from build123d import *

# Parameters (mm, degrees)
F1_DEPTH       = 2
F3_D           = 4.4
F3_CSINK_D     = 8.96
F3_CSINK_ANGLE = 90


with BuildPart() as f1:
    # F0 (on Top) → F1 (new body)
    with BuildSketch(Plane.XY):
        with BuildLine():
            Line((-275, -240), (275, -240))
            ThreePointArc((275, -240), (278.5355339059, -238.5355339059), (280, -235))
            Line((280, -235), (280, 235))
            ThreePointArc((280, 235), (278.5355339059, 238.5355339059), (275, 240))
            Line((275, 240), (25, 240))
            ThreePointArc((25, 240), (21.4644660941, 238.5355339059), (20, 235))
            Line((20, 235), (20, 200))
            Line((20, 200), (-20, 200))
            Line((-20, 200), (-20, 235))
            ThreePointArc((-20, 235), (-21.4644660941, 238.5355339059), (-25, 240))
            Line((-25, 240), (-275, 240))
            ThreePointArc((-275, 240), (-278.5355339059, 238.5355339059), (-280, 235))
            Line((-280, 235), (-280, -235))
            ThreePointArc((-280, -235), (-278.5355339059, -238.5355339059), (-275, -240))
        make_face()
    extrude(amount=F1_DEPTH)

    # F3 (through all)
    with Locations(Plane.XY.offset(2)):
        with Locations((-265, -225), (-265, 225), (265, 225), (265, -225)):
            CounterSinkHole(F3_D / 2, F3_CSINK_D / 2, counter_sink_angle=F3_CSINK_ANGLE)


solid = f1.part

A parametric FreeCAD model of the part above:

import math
import FreeCAD as App
import Part
import Sketcher
from FreeCAD import Vector

doc = App.newDocument("Part")
body = doc.addObject("PartDesign::Body", "Body")

sketch1 = body.newObject("Sketcher::SketchObject", "Sketch")
sketch1.AttachmentSupport = (doc.getObject("XY_Plane"), [""])
sketch1.MapMode = "FlatFace"
sketch1.addGeometry(Part.LineSegment(Vector(-275, -240, 0), Vector(275, -240, 0)), False)
sketch1.addGeometry(Part.ArcOfCircle(Part.Circle(Vector(275, -235, 0), Vector(0, 0, 1), 5), math.radians(-90), math.radians(0)), False)
sketch1.addGeometry(Part.LineSegment(Vector(280, -235, 0), Vector(280, 235, 0)), False)
sketch1.addGeometry(Part.ArcOfCircle(Part.Circle(Vector(275, 235, 0), Vector(0, 0, 1), 5), math.radians(0), math.radians(90)), False)
sketch1.addGeometry(Part.LineSegment(Vector(275, 240, 0), Vector(25, 240, 0)), False)
sketch1.addGeometry(Part.ArcOfCircle(Part.Circle(Vector(25, 235, 0), Vector(0, 0, 1), 5), math.radians(90), math.radians(180)), False)
sketch1.addGeometry(Part.LineSegment(Vector(20, 235, 0), Vector(20, 200, 0)), False)
sketch1.addGeometry(Part.LineSegment(Vector(20, 200, 0), Vector(-20, 200, 0)), False)
sketch1.addGeometry(Part.LineSegment(Vector(-20, 200, 0), Vector(-20, 235, 0)), False)
sketch1.addGeometry(Part.ArcOfCircle(Part.Circle(Vector(-25, 235, 0), Vector(0, 0, 1), 5), math.radians(0), math.radians(90)), False)
sketch1.addGeometry(Part.LineSegment(Vector(-25, 240, 0), Vector(-275, 240, 0)), False)
sketch1.addGeometry(Part.ArcOfCircle(Part.Circle(Vector(-275, 235, 0), Vector(0, 0, 1), 5), math.radians(90), math.radians(180)), False)
sketch1.addGeometry(Part.LineSegment(Vector(-280, 235, 0), Vector(-280, -235, 0)), False)
sketch1.addGeometry(Part.ArcOfCircle(Part.Circle(Vector(-275, -235, 0), Vector(0, 0, 1), 5), math.radians(180), math.radians(270)), False)
sketch1.addConstraint(Sketcher.Constraint("Tangent", 0, 2, 1, 1))
sketch1.addConstraint(Sketcher.Constraint("Tangent", 1, 2, 2, 1))
sketch1.addConstraint(Sketcher.Constraint("Tangent", 2, 2, 3, 1))
sketch1.addConstraint(Sketcher.Constraint("Tangent", 3, 2, 4, 1))
sketch1.addConstraint(Sketcher.Constraint("Tangent", 4, 2, 5, 1))
sketch1.addConstraint(Sketcher.Constraint("Tangent", 5, 2, 6, 1))
sketch1.addConstraint(Sketcher.Constraint("Coincident", 6, 2, 7, 1))
sketch1.addConstraint(Sketcher.Constraint("Coincident", 7, 2, 8, 1))
sketch1.addConstraint(Sketcher.Constraint("Tangent", 8, 2, 9, 1))
sketch1.addConstraint(Sketcher.Constraint("Tangent", 9, 2, 10, 1))
sketch1.addConstraint(Sketcher.Constraint("Tangent", 10, 2, 11, 1))
sketch1.addConstraint(Sketcher.Constraint("Tangent", 11, 2, 12, 1))
sketch1.addConstraint(Sketcher.Constraint("Tangent", 12, 2, 13, 1))
sketch1.addConstraint(Sketcher.Constraint("Tangent", 13, 2, 0, 1))
sketch1.addConstraint(Sketcher.Constraint("Horizontal", 0))
sketch1.addConstraint(Sketcher.Constraint("Vertical", 2))
sketch1.addConstraint(Sketcher.Constraint("Horizontal", 4))
sketch1.addConstraint(Sketcher.Constraint("Vertical", 6))
sketch1.addConstraint(Sketcher.Constraint("Horizontal", 7))
sketch1.addConstraint(Sketcher.Constraint("Vertical", 8))
sketch1.addConstraint(Sketcher.Constraint("Horizontal", 10))
sketch1.addConstraint(Sketcher.Constraint("Vertical", 12))
sketch1.addConstraint(Sketcher.Constraint("Equal", 1, 3))
sketch1.addConstraint(Sketcher.Constraint("Equal", 3, 5))
sketch1.addConstraint(Sketcher.Constraint("Equal", 5, 9))
sketch1.addConstraint(Sketcher.Constraint("Equal", 9, 11))
sketch1.addConstraint(Sketcher.Constraint("Equal", 11, 13))
sketch1.addConstraint(Sketcher.Constraint("Symmetric", 1, 3, 11, 3, -1, 1))
sketch1.addConstraint(Sketcher.Constraint("Symmetric", 5, 3, 9, 3, -2))
sketch1.addConstraint(Sketcher.Constraint("Radius", 1, 5.0))
sketch1.addConstraint(Sketcher.Constraint("DistanceX", 0, 1, 0, 2, 550.0))
sketch1.addConstraint(Sketcher.Constraint("DistanceX", 4, 2, 4, 1, 250.0))
sketch1.addConstraint(Sketcher.Constraint("DistanceY", 2, 1, 2, 2, 470.0))
sketch1.addConstraint(Sketcher.Constraint("DistanceY", 6, 2, 6, 1, 35.0))
pad1 = body.newObject("PartDesign::Pad", "Pad")
pad1.Profile = sketch1
pad1.Length = 2

sketch2 = body.newObject("Sketcher::SketchObject", "Sketch001")
sketch2.AttachmentSupport = (doc.getObject("XY_Plane"), [""])
sketch2.MapMode = "FlatFace"
sketch2.AttachmentOffset = App.Placement(Vector(0, 0, 2), App.Rotation())
sketch2.addGeometry(Part.Circle(Vector(-265, -225, 0), Vector(0, 0, 1), 2.2), False)
sketch2.addGeometry(Part.Circle(Vector(-265, 225, 0), Vector(0, 0, 1), 2.2), False)
sketch2.addGeometry(Part.Circle(Vector(265, 225, 0), Vector(0, 0, 1), 2.2), False)
sketch2.addGeometry(Part.Circle(Vector(265, -225, 0), Vector(0, 0, 1), 2.2), False)
sketch2.addConstraint(Sketcher.Constraint("Equal", 0, 1))
sketch2.addConstraint(Sketcher.Constraint("Equal", 1, 2))
sketch2.addConstraint(Sketcher.Constraint("Equal", 2, 3))
sketch2.addConstraint(Sketcher.Constraint("Symmetric", 0, 3, 2, 3, -1, 1))
sketch2.addConstraint(Sketcher.Constraint("Symmetric", 1, 3, 3, 3, -1, 1))
sketch2.addConstraint(Sketcher.Constraint("Symmetric", 1, 3, 2, 3, -2))
sketch2.addConstraint(Sketcher.Constraint("Diameter", 0, 4.4))
sketch2.addConstraint(Sketcher.Constraint("DistanceX", 0, 3, -1, 1, 265.0))
sketch2.addConstraint(Sketcher.Constraint("DistanceY", 0, 3, -1, 1, 225.0))
doc.recompute()
hole = body.newObject("PartDesign::Hole", "Hole")
hole.Profile = sketch2
hole.ThreadType = "None"
hole.Diameter = 4.4
hole.DepthType = "ThroughAll"
hole.HoleCutType = "Countersink"
hole.HoleCutDiameter = 8.96
hole.HoleCutCountersinkAngle = 90

doc.recompute()
